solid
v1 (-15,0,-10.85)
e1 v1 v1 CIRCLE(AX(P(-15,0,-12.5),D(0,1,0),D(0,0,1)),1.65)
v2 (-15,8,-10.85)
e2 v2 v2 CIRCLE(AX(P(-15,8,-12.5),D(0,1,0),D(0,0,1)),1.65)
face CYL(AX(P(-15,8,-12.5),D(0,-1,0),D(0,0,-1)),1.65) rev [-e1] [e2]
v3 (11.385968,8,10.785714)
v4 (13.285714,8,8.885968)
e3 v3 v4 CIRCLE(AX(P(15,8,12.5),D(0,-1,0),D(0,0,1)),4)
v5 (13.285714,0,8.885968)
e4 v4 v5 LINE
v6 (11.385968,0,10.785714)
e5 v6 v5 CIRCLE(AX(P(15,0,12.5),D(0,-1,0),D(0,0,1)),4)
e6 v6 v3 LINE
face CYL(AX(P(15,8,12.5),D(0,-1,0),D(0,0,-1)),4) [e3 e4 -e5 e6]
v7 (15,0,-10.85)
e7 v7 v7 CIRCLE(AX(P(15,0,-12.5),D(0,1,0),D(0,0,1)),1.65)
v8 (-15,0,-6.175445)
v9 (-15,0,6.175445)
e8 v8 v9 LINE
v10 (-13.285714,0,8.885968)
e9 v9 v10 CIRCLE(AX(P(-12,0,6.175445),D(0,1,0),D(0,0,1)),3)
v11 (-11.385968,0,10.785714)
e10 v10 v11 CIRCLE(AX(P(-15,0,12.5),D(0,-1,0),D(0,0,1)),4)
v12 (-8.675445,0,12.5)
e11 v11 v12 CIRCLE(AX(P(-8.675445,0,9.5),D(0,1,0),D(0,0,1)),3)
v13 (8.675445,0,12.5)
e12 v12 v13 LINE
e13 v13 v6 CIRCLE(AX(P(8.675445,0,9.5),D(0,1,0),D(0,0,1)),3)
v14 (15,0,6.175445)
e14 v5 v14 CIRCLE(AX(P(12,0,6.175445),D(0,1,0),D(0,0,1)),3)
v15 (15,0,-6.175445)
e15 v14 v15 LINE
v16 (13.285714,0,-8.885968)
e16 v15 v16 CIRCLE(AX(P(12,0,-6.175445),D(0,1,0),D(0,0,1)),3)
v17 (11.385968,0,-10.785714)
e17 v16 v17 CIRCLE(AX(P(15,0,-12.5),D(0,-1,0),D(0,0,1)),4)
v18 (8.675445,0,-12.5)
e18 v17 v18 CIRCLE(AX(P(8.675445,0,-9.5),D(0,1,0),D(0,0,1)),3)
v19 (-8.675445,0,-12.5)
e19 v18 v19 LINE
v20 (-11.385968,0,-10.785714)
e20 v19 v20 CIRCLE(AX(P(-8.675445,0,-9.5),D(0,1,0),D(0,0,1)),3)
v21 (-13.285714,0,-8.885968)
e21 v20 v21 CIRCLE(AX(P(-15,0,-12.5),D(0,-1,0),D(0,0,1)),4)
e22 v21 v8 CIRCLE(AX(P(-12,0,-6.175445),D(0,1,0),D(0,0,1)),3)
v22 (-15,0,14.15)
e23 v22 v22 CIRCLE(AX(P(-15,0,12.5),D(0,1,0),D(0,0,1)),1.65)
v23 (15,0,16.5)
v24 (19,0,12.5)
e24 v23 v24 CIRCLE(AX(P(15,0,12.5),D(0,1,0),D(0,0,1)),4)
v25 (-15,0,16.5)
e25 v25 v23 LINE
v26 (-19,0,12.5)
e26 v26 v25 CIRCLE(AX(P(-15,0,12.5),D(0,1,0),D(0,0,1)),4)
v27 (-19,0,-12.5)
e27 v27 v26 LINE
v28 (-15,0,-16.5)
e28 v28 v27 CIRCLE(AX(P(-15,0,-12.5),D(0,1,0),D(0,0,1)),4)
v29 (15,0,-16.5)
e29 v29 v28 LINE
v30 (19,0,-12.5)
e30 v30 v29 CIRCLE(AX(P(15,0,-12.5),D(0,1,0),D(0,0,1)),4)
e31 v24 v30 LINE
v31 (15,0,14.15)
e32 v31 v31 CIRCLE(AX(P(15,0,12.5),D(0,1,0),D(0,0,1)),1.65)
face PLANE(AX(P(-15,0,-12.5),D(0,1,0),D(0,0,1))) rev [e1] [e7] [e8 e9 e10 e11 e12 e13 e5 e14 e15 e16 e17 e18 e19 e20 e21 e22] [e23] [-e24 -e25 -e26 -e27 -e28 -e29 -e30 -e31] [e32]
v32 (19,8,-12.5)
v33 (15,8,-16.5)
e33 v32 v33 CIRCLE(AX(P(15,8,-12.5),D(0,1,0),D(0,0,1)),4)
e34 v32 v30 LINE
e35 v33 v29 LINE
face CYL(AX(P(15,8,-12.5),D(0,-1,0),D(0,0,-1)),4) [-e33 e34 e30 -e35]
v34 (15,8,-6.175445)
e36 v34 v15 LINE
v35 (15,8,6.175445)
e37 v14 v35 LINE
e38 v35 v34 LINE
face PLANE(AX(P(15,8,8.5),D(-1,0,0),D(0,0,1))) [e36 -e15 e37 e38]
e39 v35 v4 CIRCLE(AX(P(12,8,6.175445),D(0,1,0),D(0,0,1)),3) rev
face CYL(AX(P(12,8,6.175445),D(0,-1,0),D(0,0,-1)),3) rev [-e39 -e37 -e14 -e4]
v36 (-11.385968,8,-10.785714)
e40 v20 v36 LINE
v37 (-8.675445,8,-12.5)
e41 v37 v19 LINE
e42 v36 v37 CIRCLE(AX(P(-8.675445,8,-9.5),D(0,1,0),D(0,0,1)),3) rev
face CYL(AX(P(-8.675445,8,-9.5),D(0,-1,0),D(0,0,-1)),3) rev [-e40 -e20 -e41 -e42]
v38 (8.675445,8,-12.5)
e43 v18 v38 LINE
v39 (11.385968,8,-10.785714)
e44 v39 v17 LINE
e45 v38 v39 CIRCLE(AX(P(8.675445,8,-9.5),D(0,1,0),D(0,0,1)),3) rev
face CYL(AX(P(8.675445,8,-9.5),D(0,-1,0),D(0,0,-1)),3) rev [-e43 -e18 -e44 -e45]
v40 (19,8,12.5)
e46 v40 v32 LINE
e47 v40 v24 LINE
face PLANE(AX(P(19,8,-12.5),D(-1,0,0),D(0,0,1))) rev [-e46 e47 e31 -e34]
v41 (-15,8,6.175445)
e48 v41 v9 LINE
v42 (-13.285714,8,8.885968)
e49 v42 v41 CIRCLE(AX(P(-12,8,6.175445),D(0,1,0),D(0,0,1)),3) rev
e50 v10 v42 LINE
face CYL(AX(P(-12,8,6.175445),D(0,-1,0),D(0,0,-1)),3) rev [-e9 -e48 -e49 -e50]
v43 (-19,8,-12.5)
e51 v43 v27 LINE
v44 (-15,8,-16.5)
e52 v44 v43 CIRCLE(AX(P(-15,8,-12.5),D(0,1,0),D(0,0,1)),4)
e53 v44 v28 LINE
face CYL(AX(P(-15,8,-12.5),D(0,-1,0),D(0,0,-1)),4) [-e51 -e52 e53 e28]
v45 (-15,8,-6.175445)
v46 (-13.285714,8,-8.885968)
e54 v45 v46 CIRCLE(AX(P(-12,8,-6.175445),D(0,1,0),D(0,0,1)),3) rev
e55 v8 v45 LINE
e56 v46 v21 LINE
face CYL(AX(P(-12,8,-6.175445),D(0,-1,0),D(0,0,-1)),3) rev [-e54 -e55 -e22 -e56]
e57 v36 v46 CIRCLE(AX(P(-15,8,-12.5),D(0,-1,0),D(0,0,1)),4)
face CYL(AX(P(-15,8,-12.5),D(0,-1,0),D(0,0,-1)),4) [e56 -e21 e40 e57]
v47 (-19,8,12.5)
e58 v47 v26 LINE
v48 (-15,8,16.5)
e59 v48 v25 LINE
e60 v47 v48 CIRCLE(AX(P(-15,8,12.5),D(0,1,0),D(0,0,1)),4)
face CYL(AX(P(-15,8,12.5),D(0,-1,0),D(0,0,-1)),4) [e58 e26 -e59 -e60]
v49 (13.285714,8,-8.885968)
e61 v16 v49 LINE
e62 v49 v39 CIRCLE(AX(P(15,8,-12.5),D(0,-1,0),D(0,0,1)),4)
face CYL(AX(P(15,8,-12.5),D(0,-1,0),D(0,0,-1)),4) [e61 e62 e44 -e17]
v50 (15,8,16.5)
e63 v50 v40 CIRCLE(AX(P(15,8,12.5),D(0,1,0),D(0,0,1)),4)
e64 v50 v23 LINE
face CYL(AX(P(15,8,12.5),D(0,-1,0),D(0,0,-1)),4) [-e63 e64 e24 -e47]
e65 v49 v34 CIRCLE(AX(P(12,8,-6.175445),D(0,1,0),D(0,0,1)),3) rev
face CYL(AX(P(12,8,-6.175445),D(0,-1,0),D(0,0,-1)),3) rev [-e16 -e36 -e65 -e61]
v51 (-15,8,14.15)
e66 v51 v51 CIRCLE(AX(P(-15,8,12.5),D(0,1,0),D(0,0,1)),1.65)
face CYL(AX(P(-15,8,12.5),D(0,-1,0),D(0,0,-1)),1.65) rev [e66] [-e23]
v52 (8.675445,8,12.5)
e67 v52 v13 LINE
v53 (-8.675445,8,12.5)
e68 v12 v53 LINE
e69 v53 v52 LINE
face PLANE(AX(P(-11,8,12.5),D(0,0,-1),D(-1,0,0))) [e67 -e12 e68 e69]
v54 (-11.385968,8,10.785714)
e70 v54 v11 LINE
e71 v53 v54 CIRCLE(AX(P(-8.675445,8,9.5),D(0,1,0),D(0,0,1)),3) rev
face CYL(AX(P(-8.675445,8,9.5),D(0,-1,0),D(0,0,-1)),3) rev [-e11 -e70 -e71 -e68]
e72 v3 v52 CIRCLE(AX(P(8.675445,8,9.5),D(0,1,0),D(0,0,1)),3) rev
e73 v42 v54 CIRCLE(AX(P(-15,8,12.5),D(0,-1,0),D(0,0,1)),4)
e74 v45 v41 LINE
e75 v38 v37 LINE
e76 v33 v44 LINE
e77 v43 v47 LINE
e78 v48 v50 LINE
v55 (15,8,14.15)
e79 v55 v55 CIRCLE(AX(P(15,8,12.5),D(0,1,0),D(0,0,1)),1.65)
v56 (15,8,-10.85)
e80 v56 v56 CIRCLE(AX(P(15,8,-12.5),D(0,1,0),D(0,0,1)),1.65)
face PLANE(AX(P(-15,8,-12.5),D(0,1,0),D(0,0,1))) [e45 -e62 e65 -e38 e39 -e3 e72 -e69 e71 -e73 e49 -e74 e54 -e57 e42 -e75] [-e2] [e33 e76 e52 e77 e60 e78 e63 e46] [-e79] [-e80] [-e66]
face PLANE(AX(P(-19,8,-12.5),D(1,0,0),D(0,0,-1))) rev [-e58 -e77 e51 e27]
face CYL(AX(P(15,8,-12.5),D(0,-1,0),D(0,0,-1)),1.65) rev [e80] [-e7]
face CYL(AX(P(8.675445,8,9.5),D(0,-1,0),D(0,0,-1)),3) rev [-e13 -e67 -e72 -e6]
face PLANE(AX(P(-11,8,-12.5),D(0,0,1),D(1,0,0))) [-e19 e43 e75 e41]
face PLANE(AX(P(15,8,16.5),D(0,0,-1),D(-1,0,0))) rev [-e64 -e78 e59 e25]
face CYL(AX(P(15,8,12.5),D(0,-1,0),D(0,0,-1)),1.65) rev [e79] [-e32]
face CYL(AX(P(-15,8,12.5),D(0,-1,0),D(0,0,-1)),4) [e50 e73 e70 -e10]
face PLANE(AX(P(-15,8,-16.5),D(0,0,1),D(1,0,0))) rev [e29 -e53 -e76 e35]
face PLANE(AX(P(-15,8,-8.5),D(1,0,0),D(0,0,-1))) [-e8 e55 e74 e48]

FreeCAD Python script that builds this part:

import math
import FreeCAD as App
import Part
import Sketcher

V = App.Vector
Q = App.Units.Quantity


def edges_at(feature, points):
    """Names of the edges that pass closest to the given points."""
    edges = feature.Shape.Edges
    near = lambda p: min(range(len(edges)), key=lambda i: edges[i].distToShape(Part.Vertex(*p))[0])
    return sorted({f"Edge{near(p) + 1}" for p in points})

doc = App.newDocument("Part")
body = doc.addObject("PartDesign::Body", "Body")

# Sketch on XZ plane
sketch1 = body.newObject("Sketcher::SketchObject", "Sketch")
sketch1.AttachmentSupport = (doc.getObject("XZ_Plane"), [""])
sketch1.MapMode = "FlatFace"
sketch1.addGeometry([
    Part.LineSegment(V(-19, -12.5, 0), V(-19, 12.5, 0)),  # 0
    Part.ArcOfCircle(Part.Circle(V(-15, 12.5, 0), V(0, 0, 1), 4), math.radians(90), math.radians(180)),  # 1
    Part.LineSegment(V(-15, 16.5, 0), V(15, 16.5, 0)),  # 2
    Part.ArcOfCircle(Part.Circle(V(15, 12.5, 0), V(0, 0, 1), 4), math.radians(0), math.radians(90)),  # 3
    Part.LineSegment(V(19, 12.5, 0), V(19, -12.5, 0)),  # 4
    Part.ArcOfCircle(Part.Circle(V(15, -12.5, 0), V(0, 0, 1), 4), math.radians(-90), math.radians(0)),  # 5
    Part.LineSegment(V(15, -16.5, 0), V(-15, -16.5, 0)),  # 6
    Part.ArcOfCircle(Part.Circle(V(-15, -12.5, 0), V(0, 0, 1), 4), math.radians(180), math.radians(270)),  # 7
    Part.Circle(V(-15, 12.5, 0), V(0, 0, 1), 1.65),  # 8
    Part.Circle(V(15, 12.5, 0), V(0, 0, 1), 1.65),  # 9
    Part.Circle(V(-15, -12.5, 0), V(0, 0, 1), 1.65),  # 10
    Part.ArcOfCircle(Part.Circle(V(-15, -12.5, 0), V(0, 0, 1), 4), math.radians(0), math.radians(90)),  # 11
    Part.LineSegment(V(-11, -12.5, 0), V(11, -12.5, 0)),  # 12
    Part.ArcOfCircle(Part.Circle(V(15, -12.5, 0), V(0, 0, 1), 4), math.radians(90), math.radians(180)),  # 13
    Part.LineSegment(V(15, -8.5, 0), V(15, 8.5, 0)),  # 14
    Part.ArcOfCircle(Part.Circle(V(15, 12.5, 0), V(0, 0, 1), 4), math.radians(180), math.radians(270)),  # 15
    Part.LineSegment(V(11, 12.5, 0), V(-11, 12.5, 0)),  # 16
    Part.ArcOfCircle(Part.Circle(V(-15, 12.5, 0), V(0, 0, 1), 4), math.radians(-90), math.radians(0)),  # 17
    Part.LineSegment(V(-15, 8.5, 0), V(-15, -8.5, 0)),  # 18
    Part.Circle(V(15, -12.5, 0), V(0, 0, 1), 1.65),  # 19
], False)
sketch1.addConstraint([
    Sketcher.Constraint("Tangent", 0, 2, 1, 2),
    Sketcher.Constraint("Tangent", 1, 1, 2, 1),
    Sketcher.Constraint("Tangent", 2, 2, 3, 2),
    Sketcher.Constraint("Tangent", 3, 1, 4, 1),
    Sketcher.Constraint("Tangent", 4, 2, 5, 2),
    Sketcher.Constraint("Tangent", 5, 1, 6, 1),
    Sketcher.Constraint("Tangent", 6, 2, 7, 2),
    Sketcher.Constraint("Tangent", 7, 1, 0, 1),
    Sketcher.Constraint("Coincident", 11, 1, 12, 1),
    Sketcher.Constraint("Coincident", 12, 2, 13, 2),
    Sketcher.Constraint("Coincident", 13, 1, 14, 1),
    Sketcher.Constraint("Coincident", 14, 2, 15, 2),
    Sketcher.Constraint("Coincident", 15, 1, 16, 1),
    Sketcher.Constraint("Coincident", 16, 2, 17, 2),
    Sketcher.Constraint("Coincident", 17, 1, 18, 1),
    Sketcher.Constraint("Coincident", 18, 2, 11, 2),
    Sketcher.Constraint("Vertical", 0),
    Sketcher.Constraint("Horizontal", 2),
    Sketcher.Constraint("Vertical", 4),
    Sketcher.Constraint("Horizontal", 6),
    Sketcher.Constraint("Horizontal", 12),
    Sketcher.Constraint("Vertical", 14),
    Sketcher.Constraint("Horizontal", 16),
    Sketcher.Constraint("Vertical", 18),
    Sketcher.Constraint("Coincident", 8, 3, 1, 3),
    Sketcher.Constraint("Coincident", 9, 3, 3, 3),
    Sketcher.Constraint("Coincident", 10, 3, 7, 3),
    Sketcher.Constraint("Coincident", 11, 3, 7, 3),
    Sketcher.Constraint("Coincident", 13, 3, 5, 3),
    Sketcher.Constraint("Coincident", 15, 3, 3, 3),
    Sketcher.Constraint("Coincident", 17, 3, 1, 3),
    Sketcher.Constraint("Coincident", 19, 3, 5, 3),
    Sketcher.Constraint("Equal", 1, 3),
    Sketcher.Constraint("Equal", 3, 5),
    Sketcher.Constraint("Equal", 5, 7),
    Sketcher.Constraint("Equal", 8, 9),
    Sketcher.Constraint("Equal", 9, 10),
    Sketcher.Constraint("Equal", 7, 11),
    Sketcher.Constraint("Equal", 11, 13),
    Sketcher.Constraint("Equal", 13, 15),
    Sketcher.Constraint("Equal", 15, 17),
    Sketcher.Constraint("Equal", 10, 19),
    Sketcher.Constraint("Symmetric", 1, 3, 5, 3, -1, 1),
    Sketcher.Constraint("Horizontal", 7, 1, 11, 1),
    Sketcher.Constraint("Horizontal", 3, 1, 15, 1),
    Sketcher.Constraint("Vertical", 5, 1, 13, 1),
    Sketcher.Constraint("Vertical", 6, 2, 17, 1),
    Sketcher.Constraint("Radius", 1, Q("4 mm")),
    Sketcher.Constraint("Diameter", 8, Q("3.3 mm")),
    Sketcher.Constraint("DistanceX", 2, 1, 2, 2, Q("30 mm")),
    Sketcher.Constraint("DistanceY", 0, 1, 0, 2, Q("25 mm")),
])
pad1 = body.newObject("PartDesign::Pad", "Pad")
pad1.Profile = sketch1
pad1.Length = 8
pad1.Reversed = True
doc.recompute()

fillet = body.newObject("PartDesign::Fillet", "Fillet")
fillet.Base = (pad1, edges_at(pad1, [
    (-11, 4, -12.5),
    (-15, 4, -8.5),
    (-15, 4, 8.5),
    (-11, 4, 12.5),
    (11, 4, 12.5),
    (15, 4, 8.5),
    (15, 4, -8.5),
    (11, 4, -12.5),
]))
fillet.Radius = 3

doc.recompute()
